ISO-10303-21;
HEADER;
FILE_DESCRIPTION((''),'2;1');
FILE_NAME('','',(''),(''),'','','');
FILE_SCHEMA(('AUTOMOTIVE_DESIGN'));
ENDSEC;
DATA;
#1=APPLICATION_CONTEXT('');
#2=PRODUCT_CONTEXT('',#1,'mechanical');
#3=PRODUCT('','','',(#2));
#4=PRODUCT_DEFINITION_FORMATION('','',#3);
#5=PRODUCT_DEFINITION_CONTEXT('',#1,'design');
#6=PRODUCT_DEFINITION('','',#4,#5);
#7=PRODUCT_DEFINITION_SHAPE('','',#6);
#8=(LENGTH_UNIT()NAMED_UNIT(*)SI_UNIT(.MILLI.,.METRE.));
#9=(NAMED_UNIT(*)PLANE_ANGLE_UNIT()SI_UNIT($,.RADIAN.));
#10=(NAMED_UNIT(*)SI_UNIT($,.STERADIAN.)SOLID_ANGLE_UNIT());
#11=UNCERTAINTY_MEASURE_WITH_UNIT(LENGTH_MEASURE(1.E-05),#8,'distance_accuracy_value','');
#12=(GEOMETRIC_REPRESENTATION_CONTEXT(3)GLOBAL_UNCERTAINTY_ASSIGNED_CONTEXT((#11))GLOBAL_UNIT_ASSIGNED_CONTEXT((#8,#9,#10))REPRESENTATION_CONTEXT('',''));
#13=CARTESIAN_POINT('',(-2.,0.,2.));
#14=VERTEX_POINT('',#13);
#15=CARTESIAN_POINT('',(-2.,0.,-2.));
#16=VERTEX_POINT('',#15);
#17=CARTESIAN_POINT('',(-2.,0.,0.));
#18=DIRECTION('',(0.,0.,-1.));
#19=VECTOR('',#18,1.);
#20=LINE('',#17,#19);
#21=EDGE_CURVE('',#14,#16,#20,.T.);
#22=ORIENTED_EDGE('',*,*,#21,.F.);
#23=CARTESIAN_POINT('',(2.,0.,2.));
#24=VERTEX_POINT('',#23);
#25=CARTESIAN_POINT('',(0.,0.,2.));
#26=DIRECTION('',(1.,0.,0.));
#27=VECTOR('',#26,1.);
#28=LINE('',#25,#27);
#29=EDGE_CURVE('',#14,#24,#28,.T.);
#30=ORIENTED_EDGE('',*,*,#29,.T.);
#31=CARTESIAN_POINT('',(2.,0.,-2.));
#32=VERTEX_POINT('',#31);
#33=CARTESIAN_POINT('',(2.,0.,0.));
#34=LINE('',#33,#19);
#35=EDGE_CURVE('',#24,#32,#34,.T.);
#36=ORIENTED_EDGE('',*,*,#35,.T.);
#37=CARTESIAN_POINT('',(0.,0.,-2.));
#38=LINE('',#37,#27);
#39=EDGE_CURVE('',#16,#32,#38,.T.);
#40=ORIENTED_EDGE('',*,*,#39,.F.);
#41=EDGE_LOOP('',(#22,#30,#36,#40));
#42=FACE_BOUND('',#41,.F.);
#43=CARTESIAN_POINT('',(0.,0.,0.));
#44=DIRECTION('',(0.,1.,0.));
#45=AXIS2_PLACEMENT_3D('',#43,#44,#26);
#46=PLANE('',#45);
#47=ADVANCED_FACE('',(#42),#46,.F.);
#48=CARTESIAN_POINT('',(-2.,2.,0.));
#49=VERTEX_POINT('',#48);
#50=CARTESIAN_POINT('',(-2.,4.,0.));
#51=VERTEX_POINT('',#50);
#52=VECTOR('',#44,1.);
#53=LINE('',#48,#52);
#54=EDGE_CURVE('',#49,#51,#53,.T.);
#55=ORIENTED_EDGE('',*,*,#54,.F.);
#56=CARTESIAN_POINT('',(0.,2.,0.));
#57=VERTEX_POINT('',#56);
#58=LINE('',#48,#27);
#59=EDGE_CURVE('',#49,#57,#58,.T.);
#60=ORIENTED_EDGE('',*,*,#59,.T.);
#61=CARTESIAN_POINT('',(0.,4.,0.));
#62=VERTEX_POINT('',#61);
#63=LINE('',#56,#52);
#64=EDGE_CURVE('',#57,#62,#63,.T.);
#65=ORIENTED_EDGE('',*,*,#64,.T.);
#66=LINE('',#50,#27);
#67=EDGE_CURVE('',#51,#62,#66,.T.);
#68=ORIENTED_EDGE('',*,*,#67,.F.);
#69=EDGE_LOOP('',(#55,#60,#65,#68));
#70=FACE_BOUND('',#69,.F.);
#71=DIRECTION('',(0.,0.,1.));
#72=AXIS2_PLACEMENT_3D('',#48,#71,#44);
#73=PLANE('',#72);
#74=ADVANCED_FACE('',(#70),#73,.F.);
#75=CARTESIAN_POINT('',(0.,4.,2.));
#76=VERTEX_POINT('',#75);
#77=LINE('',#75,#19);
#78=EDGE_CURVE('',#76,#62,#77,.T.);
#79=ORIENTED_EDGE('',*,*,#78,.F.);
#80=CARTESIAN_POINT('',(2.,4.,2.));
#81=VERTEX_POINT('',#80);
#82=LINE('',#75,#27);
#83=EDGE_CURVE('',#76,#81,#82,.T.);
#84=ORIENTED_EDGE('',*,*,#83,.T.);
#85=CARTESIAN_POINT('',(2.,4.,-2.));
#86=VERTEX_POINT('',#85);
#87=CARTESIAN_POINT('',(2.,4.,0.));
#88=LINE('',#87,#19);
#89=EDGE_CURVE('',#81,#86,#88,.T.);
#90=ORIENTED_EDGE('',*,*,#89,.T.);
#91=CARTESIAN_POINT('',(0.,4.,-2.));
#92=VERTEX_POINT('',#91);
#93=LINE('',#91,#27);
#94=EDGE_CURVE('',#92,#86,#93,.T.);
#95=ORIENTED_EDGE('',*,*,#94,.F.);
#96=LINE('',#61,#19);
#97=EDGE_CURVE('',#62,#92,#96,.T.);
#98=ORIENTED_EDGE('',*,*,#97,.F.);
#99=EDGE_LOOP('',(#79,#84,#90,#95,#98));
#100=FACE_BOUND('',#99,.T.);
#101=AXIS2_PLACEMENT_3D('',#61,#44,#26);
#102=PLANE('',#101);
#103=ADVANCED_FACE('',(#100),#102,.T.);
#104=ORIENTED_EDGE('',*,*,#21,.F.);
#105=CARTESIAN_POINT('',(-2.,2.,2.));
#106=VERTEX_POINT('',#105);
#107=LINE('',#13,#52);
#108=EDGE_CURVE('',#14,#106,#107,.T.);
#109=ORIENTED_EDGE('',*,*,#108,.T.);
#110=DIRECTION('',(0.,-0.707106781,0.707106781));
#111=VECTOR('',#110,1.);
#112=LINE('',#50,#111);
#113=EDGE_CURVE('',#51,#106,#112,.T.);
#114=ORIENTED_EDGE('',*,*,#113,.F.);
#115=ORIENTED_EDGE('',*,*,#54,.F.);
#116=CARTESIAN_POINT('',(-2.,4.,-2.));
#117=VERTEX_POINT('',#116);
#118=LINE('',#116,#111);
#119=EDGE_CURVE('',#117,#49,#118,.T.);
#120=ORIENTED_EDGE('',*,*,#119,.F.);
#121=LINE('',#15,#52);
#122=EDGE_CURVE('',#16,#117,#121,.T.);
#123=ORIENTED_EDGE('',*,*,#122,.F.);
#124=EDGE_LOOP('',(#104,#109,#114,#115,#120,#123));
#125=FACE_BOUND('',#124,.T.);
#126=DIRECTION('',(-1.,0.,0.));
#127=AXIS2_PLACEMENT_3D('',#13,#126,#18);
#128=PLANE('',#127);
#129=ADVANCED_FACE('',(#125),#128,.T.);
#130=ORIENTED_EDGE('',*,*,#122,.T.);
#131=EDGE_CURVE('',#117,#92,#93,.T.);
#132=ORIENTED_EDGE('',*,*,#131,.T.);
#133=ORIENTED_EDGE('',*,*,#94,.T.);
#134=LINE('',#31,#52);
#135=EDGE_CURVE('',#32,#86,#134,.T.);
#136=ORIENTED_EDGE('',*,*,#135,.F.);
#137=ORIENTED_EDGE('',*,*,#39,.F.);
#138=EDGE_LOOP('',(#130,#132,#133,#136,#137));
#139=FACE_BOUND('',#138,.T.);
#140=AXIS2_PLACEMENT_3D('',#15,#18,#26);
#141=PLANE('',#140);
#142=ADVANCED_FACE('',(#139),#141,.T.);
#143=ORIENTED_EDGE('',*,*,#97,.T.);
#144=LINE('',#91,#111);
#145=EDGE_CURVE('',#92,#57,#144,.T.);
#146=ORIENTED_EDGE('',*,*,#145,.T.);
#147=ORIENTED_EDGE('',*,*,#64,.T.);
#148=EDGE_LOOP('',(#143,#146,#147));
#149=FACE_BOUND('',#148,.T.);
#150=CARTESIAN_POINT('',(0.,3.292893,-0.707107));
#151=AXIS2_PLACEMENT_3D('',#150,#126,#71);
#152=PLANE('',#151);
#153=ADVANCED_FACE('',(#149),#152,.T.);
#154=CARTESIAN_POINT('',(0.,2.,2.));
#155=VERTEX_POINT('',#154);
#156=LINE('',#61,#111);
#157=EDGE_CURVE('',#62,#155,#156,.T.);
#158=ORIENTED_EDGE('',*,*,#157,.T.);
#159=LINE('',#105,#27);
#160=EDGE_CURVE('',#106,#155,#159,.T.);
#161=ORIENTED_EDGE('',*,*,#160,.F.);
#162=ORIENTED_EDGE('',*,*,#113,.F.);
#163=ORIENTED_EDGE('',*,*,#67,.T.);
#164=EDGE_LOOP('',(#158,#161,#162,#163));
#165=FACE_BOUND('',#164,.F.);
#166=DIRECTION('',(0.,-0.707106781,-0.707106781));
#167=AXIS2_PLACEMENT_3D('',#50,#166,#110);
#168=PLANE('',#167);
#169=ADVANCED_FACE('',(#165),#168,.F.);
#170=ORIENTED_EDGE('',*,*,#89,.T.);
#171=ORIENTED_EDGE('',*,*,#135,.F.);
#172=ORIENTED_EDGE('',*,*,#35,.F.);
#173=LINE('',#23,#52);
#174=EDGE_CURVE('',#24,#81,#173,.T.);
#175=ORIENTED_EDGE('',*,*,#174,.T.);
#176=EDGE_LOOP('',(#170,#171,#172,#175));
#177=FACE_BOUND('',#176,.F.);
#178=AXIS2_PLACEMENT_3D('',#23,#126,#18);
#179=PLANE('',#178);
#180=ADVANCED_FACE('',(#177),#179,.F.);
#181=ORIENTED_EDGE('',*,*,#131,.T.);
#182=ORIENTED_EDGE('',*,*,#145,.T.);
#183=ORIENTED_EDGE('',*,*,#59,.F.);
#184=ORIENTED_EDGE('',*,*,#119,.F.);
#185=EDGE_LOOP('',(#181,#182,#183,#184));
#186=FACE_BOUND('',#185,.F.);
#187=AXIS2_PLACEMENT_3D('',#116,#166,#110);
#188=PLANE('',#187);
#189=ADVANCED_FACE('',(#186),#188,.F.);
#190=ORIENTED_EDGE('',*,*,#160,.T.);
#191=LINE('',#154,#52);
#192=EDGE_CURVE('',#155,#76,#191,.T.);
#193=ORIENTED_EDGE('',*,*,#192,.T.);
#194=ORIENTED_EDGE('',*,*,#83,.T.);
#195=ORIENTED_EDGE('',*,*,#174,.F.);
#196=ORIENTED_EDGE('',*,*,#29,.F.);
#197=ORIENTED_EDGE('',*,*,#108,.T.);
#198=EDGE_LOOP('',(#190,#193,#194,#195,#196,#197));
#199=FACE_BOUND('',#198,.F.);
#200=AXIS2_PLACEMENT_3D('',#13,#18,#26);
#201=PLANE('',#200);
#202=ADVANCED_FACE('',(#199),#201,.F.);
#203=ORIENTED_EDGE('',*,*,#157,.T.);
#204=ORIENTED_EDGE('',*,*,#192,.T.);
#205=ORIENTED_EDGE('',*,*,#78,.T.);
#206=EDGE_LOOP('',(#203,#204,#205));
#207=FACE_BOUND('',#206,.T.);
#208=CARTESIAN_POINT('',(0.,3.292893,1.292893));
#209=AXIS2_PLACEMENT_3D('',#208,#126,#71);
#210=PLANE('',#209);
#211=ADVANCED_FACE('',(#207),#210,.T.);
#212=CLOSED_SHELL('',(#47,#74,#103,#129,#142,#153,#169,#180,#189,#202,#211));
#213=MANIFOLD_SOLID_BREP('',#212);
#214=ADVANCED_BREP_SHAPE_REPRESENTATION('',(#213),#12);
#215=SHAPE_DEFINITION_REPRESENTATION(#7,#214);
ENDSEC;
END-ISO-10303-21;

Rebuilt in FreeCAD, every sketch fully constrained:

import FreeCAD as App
import Part
import Sketcher


def add_polygon(sketch, points):
    """Adds a closed chain of lines whose ends are joined by coincident constraints."""
    first, n = sketch.GeometryCount, len(points)
    for a, b in zip(points, points[1:] + points[:1]):
        sketch.addGeometry(Part.LineSegment(App.Vector(*a, 0), App.Vector(*b, 0)), False)
    for i in range(n):
        sketch.addConstraint(Sketcher.Constraint("Coincident", first + i, 2, first + (i + 1) % n, 1))

doc = App.newDocument("Part")
body = doc.addObject("PartDesign::Body", "Body")

sketch1 = doc.addObject("Sketcher::SketchObject", "Sketch")
body.addObject(sketch1)
sketch1.AttachmentSupport = (doc.XZ_Plane, [""])
sketch1.MapMode = "FlatFace"
add_polygon(sketch1, [(-2, -2), (-2, 2), (2, 2), (2, -2)])
sketch1.addConstraint(Sketcher.Constraint("Vertical", 0))
sketch1.addConstraint(Sketcher.Constraint("Horizontal", 1))
sketch1.addConstraint(Sketcher.Constraint("Vertical", 2))
sketch1.addConstraint(Sketcher.Constraint("Horizontal", 3))
sketch1.addConstraint(Sketcher.Constraint("Symmetric", 0, 2, 2, 2, -1, 1))
sketch1.addConstraint(Sketcher.Constraint("Equal", 3, 0))
sketch1.addConstraint(Sketcher.Constraint("DistanceX", 1, 1, 1, 2, 4.0))
pad1 = doc.addObject("PartDesign::Pad", "Pad")
body.addObject(pad1)
pad1.Profile = sketch1
pad1.Length = 4
pad1.Reversed = True

sketch2 = doc.addObject("Sketcher::SketchObject", "Sketch001")
body.addObject(sketch2)
sketch2.AttachmentSupport = (doc.YZ_Plane, [""])
sketch2.MapMode = "FlatFace"
sketch2.AttachmentOffset = App.Placement(App.Vector(0, 0, -2), App.Rotation())
add_polygon(sketch2, [(2, 0), (4, 0), (4, -2)])
add_polygon(sketch2, [(4, 0), (2, 2), (4, 2)])
sketch2.addConstraint(Sketcher.Constraint("Horizontal", 0))
sketch2.addConstraint(Sketcher.Constraint("Vertical", 1))
sketch2.addConstraint(Sketcher.Constraint("Horizontal", 4))
sketch2.addConstraint(Sketcher.Constraint("Vertical", 5))
sketch2.addConstraint(Sketcher.Constraint("Coincident", 5, 2, 0, 2))
sketch2.addConstraint(Sketcher.Constraint("PointOnObject", 0, 2, -1))
sketch2.addConstraint(Sketcher.Constraint("Parallel", 2, 3))
sketch2.addConstraint(Sketcher.Constraint("Vertical", 2, 2, 3, 2))
sketch2.addConstraint(Sketcher.Constraint("Equal", 4, 1))
sketch2.addConstraint(Sketcher.Constraint("DistanceX", 0, 1, 0, 2, 2.0))
sketch2.addConstraint(Sketcher.Constraint("DistanceX", -1, 1, 0, 2, 4.0))
pocket1 = doc.addObject("PartDesign::Pocket", "Pocket")
body.addObject(pocket1)
pocket1.Profile = sketch2
pocket1.Length = 2
pocket1.Reversed = True

doc.recompute()
